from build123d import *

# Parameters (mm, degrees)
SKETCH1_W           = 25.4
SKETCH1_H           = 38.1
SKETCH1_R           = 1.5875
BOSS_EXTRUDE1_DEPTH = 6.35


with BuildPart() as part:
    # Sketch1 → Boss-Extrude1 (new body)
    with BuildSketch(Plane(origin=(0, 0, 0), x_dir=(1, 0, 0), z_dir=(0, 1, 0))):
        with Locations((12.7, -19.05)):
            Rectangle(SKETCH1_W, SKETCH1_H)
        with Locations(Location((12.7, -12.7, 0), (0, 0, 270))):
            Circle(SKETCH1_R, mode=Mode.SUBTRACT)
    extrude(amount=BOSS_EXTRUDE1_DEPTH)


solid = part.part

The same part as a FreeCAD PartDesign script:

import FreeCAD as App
import Part
import Sketcher

V = App.Vector
Q = App.Units.Quantity


def add_polygon(sketch, points):
    """Adds a closed chain of lines whose ends are joined by coincident constraints."""
    first, n = sketch.GeometryCount, len(points)
    for a, b in zip(points, points[1:] + points[:1]):
        sketch.addGeometry(Part.LineSegment(App.Vector(*a, 0), App.Vector(*b, 0)), False)
    for i in range(n):
        sketch.addConstraint(Sketcher.Constraint("Coincident", first + i, 2, first + (i + 1) % n, 1))

doc = App.newDocument("Part")
body = doc.addObject("PartDesign::Body", "Body")

sketch1 = body.newObject("Sketcher::SketchObject", "Sketch")
sketch1.AttachmentSupport = (doc.getObject("XZ_Plane"), [""])
sketch1.MapMode = "FlatFace"
add_polygon(sketch1, [(0, 0), (0, 38.1), (25.4, 38.1), (25.4, 0)])
sketch1.addGeometry(Part.Circle(V(12.7, 12.7, 0), V(0, 0, 1), 1.6), False)
sketch1.addConstraint([
    Sketcher.Constraint("Vertical", 0),
    Sketcher.Constraint("Horizontal", 1),
    Sketcher.Constraint("Vertical", 2),
    Sketcher.Constraint("Horizontal", 3),
    Sketcher.Constraint("Coincident", 3, 2, -1, 1),
    Sketcher.Constraint("DistanceX", 1, 1, 1, 2, Q("1 in")),
    Sketcher.Constraint("Diameter", 4, Q("0.125 in")),
    Sketcher.Constraint("DistanceY", 0, 1, 0, 2, Q("1.5 in")),
    Sketcher.Constraint("DistanceY", 4, 3, 0, 2, Q("1 in")),
    Sketcher.Constraint("DistanceX", -1, 1, 4, 3, Q("0.5 in")),
])
pad1 = body.newObject("PartDesign::Pad", "Pad")
pad1.Profile = sketch1
pad1.Length = Q("0.25 in")
pad1.Reversed = True

doc.recompute()
